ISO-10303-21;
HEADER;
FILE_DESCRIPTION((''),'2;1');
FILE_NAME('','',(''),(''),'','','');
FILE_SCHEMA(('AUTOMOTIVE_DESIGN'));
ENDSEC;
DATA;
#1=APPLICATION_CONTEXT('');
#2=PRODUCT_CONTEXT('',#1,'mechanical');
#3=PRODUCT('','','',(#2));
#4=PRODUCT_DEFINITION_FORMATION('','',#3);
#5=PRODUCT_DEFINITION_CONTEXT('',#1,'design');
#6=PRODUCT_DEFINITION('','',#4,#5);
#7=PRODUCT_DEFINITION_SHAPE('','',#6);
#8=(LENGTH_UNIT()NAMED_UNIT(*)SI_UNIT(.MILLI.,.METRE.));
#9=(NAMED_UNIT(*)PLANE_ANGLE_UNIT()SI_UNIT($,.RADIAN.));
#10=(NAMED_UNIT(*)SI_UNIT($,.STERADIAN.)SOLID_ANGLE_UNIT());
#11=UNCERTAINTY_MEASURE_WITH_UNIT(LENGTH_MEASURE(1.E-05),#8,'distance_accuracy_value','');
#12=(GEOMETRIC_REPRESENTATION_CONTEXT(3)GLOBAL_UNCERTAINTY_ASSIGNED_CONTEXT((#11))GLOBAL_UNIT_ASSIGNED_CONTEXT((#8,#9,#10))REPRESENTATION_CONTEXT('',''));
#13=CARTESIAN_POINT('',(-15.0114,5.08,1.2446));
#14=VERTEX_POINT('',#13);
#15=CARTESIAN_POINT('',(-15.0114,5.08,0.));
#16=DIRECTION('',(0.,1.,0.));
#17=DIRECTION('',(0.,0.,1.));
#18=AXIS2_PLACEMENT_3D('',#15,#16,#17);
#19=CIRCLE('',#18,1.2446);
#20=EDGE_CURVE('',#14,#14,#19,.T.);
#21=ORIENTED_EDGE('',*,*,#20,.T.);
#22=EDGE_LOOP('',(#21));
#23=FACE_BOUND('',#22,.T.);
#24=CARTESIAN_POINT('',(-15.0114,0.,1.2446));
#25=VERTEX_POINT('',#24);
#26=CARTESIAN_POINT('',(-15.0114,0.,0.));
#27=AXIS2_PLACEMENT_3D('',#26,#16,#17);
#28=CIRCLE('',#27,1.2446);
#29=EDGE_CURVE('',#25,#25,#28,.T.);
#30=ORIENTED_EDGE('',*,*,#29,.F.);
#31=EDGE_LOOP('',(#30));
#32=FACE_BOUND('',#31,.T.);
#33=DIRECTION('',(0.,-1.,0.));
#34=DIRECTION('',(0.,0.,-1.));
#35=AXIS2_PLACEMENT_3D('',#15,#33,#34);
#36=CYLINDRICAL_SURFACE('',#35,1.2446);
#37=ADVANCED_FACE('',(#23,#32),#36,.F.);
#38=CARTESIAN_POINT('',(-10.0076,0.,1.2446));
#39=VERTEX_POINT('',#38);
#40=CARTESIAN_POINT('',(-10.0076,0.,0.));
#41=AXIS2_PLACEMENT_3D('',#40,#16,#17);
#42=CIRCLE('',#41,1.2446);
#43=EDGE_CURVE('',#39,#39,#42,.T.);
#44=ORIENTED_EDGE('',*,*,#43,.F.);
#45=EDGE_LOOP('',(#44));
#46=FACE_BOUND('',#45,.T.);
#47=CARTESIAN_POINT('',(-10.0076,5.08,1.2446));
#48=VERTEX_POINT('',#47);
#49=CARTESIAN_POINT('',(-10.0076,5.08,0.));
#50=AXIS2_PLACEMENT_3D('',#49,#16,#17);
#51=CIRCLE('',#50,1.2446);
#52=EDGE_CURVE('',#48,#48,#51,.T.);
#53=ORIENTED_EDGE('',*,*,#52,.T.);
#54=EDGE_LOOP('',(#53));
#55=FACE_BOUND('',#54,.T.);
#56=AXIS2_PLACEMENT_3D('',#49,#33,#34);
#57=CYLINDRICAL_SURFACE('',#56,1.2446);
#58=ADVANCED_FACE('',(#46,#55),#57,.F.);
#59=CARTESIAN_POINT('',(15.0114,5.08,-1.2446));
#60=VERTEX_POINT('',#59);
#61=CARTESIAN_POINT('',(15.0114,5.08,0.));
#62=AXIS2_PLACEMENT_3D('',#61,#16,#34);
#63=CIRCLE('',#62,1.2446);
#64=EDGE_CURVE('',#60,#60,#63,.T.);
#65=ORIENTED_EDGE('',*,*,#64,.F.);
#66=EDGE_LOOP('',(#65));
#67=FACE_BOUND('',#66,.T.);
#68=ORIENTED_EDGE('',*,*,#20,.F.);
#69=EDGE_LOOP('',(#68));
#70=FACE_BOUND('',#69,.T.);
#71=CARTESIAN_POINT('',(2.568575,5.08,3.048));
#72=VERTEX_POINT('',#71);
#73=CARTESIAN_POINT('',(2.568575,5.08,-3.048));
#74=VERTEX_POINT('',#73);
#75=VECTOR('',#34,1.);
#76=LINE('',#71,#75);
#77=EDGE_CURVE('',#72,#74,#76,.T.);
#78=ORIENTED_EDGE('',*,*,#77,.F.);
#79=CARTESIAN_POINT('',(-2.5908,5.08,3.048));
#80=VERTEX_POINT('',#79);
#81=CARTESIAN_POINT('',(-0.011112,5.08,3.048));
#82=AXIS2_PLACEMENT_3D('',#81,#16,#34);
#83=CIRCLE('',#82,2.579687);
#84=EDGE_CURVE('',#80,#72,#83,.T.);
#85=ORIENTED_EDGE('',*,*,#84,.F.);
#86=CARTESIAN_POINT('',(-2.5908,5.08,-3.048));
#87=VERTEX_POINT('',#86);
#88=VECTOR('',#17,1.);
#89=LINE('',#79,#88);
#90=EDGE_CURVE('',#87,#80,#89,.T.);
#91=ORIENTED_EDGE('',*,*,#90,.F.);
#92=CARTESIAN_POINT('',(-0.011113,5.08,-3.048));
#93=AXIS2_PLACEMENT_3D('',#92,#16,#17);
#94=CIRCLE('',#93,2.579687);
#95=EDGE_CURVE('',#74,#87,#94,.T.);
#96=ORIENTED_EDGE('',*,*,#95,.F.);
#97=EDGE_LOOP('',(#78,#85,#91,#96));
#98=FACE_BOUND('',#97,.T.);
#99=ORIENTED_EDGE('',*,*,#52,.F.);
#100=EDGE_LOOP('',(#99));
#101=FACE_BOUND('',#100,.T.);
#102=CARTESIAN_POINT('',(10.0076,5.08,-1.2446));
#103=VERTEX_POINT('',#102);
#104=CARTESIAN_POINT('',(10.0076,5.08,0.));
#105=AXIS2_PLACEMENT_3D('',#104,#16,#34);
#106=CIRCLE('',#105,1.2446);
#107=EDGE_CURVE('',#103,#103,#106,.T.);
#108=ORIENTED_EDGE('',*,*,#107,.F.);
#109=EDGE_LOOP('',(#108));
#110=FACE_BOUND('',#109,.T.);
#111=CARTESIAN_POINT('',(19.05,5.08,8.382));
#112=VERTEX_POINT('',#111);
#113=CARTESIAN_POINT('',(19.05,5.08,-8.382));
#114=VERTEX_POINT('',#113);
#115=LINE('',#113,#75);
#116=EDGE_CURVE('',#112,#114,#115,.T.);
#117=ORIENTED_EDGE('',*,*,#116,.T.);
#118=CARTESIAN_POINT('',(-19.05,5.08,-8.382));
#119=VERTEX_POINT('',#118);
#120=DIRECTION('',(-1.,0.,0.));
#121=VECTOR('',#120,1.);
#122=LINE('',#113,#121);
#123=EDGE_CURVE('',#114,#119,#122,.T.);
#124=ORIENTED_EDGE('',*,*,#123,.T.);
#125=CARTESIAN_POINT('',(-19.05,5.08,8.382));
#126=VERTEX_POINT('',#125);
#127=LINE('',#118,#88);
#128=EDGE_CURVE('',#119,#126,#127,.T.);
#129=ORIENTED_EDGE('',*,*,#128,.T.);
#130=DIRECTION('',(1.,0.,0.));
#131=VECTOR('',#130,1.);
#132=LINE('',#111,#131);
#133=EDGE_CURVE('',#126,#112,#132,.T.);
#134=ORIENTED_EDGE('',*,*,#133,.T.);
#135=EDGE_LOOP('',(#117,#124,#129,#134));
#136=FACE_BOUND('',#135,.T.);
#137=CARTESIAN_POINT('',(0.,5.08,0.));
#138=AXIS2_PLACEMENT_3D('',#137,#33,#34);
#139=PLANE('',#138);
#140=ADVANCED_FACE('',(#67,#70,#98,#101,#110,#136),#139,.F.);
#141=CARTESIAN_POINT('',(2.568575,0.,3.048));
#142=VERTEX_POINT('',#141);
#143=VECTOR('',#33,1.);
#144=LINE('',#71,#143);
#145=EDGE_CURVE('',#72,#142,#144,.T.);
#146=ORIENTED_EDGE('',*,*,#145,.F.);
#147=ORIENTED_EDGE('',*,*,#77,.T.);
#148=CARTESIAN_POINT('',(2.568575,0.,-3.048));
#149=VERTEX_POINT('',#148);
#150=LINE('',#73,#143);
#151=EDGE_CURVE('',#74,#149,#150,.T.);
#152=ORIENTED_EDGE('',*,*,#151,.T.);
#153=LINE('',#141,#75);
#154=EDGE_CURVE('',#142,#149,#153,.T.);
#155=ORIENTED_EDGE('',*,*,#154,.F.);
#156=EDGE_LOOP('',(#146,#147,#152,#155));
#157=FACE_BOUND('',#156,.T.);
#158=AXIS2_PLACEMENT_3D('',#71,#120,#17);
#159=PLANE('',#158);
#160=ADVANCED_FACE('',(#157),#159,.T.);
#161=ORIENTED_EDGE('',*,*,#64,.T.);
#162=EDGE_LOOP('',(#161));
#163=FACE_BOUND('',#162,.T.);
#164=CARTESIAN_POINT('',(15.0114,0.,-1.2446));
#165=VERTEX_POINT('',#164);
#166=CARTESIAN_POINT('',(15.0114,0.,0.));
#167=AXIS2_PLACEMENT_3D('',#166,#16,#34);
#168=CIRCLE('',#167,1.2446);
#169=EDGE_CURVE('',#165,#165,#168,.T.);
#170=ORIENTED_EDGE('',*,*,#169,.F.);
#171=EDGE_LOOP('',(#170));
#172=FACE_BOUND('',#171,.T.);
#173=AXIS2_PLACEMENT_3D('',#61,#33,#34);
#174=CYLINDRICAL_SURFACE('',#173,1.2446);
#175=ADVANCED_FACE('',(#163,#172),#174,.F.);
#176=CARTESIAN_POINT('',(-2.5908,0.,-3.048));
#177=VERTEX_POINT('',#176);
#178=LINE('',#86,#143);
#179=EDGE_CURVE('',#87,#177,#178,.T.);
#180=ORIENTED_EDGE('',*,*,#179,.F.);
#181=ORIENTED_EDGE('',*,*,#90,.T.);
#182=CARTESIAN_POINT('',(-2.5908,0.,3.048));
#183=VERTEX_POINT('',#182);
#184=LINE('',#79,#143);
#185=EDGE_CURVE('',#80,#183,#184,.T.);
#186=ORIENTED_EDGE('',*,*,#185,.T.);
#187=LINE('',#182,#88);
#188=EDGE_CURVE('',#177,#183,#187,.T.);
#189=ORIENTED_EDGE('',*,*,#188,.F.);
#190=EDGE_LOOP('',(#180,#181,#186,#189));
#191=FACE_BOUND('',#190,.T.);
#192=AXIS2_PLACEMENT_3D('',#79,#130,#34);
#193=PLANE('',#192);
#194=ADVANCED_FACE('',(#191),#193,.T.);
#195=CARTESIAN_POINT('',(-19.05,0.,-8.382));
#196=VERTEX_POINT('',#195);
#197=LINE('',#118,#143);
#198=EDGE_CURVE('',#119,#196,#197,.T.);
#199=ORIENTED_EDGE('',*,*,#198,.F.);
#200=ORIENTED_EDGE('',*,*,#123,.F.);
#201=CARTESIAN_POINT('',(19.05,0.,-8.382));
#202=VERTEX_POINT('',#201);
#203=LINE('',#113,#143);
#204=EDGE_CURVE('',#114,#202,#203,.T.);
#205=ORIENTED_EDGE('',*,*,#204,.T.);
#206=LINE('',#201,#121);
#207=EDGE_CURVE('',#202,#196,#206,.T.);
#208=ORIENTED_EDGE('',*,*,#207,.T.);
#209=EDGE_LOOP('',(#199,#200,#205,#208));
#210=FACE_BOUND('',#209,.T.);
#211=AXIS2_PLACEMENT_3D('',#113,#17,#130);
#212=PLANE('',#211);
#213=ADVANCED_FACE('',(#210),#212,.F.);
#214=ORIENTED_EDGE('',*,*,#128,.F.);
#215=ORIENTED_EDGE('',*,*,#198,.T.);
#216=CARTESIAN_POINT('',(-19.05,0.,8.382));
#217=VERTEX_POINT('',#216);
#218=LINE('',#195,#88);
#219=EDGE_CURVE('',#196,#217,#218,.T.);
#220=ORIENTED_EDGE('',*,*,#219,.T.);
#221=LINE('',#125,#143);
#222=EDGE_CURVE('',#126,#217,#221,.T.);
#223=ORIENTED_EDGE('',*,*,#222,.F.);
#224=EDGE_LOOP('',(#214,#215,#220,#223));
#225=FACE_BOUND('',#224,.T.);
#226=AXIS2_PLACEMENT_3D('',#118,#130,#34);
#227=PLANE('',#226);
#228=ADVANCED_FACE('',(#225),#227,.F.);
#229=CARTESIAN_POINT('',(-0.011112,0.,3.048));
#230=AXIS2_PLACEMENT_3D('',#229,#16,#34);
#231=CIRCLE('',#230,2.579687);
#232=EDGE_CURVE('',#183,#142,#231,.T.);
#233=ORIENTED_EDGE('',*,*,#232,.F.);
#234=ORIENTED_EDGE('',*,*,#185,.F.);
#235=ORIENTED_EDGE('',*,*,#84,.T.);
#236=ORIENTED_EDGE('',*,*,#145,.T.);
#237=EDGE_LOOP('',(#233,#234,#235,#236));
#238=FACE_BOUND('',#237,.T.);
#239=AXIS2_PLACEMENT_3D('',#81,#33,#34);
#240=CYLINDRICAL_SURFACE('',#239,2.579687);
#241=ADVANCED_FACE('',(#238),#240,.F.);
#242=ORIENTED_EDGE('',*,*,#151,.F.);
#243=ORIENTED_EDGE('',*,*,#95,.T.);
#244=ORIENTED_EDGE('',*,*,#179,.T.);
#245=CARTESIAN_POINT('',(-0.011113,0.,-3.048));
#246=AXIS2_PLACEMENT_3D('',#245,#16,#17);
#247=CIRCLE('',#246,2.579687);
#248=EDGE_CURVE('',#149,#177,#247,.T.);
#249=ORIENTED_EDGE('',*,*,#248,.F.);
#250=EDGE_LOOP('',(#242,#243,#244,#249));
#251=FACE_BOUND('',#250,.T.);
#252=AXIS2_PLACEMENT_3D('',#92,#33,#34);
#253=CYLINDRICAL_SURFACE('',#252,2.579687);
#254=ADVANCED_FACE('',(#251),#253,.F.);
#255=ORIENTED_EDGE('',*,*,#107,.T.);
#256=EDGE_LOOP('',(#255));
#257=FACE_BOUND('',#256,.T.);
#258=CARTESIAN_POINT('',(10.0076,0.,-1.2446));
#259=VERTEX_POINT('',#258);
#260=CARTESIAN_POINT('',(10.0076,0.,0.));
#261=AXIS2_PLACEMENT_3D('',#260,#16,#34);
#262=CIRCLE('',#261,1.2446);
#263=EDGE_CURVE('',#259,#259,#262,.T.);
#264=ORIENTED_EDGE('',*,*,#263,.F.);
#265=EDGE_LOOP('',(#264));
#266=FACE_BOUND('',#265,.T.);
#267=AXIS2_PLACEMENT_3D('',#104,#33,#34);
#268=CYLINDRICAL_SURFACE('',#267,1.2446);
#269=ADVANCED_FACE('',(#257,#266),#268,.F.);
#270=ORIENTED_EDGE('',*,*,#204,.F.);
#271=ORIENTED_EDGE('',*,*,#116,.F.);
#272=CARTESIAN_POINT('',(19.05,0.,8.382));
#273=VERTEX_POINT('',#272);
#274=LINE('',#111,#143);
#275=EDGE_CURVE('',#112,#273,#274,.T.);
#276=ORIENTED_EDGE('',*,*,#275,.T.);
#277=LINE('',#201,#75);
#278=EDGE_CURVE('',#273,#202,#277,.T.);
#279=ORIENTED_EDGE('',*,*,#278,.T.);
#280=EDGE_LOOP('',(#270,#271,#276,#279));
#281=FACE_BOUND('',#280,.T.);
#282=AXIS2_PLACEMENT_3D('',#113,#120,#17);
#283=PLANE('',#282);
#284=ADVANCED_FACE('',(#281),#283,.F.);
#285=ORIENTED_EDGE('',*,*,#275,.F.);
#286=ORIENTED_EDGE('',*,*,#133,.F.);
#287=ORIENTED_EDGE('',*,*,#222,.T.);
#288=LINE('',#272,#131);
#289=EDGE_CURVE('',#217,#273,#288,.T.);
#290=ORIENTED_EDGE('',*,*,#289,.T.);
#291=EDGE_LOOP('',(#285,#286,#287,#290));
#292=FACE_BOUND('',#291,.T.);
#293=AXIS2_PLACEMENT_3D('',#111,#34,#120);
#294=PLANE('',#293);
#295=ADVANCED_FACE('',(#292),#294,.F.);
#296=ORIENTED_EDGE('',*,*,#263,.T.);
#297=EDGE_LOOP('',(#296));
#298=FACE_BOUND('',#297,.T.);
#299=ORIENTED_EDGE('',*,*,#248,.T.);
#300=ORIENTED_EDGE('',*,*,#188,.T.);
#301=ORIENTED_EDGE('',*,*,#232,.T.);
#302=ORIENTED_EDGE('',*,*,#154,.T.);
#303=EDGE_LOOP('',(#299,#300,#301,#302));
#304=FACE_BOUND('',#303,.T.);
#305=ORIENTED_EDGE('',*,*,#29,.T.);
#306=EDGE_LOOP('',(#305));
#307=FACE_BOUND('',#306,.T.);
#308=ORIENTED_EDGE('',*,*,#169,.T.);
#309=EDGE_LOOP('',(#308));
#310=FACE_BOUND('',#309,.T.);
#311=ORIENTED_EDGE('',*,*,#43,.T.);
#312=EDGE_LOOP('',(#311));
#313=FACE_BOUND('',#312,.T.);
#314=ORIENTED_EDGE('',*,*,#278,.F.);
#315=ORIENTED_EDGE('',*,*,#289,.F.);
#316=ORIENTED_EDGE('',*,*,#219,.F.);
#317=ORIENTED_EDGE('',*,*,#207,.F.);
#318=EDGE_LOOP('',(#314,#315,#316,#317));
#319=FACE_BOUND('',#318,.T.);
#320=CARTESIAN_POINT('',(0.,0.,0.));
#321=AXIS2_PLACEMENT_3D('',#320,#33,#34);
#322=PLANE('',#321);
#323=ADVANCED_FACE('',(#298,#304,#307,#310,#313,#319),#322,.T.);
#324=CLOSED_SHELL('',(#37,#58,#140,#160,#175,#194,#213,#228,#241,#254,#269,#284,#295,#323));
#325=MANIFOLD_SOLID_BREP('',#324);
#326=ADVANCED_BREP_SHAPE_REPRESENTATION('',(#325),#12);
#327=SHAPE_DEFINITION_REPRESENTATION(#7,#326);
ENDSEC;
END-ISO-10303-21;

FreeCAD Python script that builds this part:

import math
import FreeCAD as App
import Part
import Sketcher

V = App.Vector
Q = App.Units.Quantity


def add_polygon(sketch, points):
    """Adds a closed chain of lines whose ends are joined by coincident constraints."""
    first, n = sketch.GeometryCount, len(points)
    for a, b in zip(points, points[1:] + points[:1]):
        sketch.addGeometry(Part.LineSegment(App.Vector(*a, 0), App.Vector(*b, 0)), False)
    for i in range(n):
        sketch.addConstraint(Sketcher.Constraint("Coincident", first + i, 2, first + (i + 1) % n, 1))

doc = App.newDocument("Part")
params = doc.addObject("Spreadsheet::Sheet", "Params")
for row, (alias, value) in enumerate([
    ("sketch1_diameter", "0.098 in"),
    ("sketch1_width", "1.5 in"),
    ("sketch1_height", "0.66 in"),
    ("sketch1_height2", "0.24 in"),
    ("pad1_length", "0.2 in"),
], start=1):
    params.set(f"A{row}", alias)
    params.set(f"B{row}", "=" + value)
    params.setAlias(f"B{row}", alias)

body = doc.addObject("PartDesign::Body", "Body")

# Sketch on XZ plane
sketch1 = body.newObject("Sketcher::SketchObject", "Sketch")
sketch1.AttachmentSupport = (doc.getObject("XZ_Plane"), [""])
sketch1.MapMode = "FlatFace"
add_polygon(sketch1, [(-19.1, -8.4), (-19.1, 8.4), (19.1, 8.4), (19.1, -8.4)])  # lines 0-3
sketch1.addGeometry(Part.Circle(V(-15, 0, 0), V(0, 0, 1), 1.2), False)  # 4
sketch1.addGeometry(Part.Circle(V(-10, 0, 0), V(0, 0, 1), 1.2), False)  # 5
sketch1.addGeometry(Part.LineSegment(V(2.6, -3, 0), V(2.6, 3, 0)), False)  # 6
sketch1.addGeometry(Part.ArcOfCircle(Part.Circle(V(0, 3, 0), V(0, 0, 1), 2.6), math.radians(0), math.radians(180)), False)  # 7
sketch1.addGeometry(Part.LineSegment(V(-2.6, 3, 0), V(-2.6, -3, 0)), False)  # 8
sketch1.addGeometry(Part.ArcOfCircle(Part.Circle(V(0, -3, 0), V(0, 0, 1), 2.6), math.radians(180), math.radians(360)), False)  # 9
sketch1.addGeometry(Part.Circle(V(10, 0, 0), V(0, 0, 1), 1.2), False)  # 10
sketch1.addGeometry(Part.Circle(V(15, 0, 0), V(0, 0, 1), 1.2), False)  # 11
sketch1.addConstraint([
    Sketcher.Constraint("Tangent", 6, 2, 7, 1),
    Sketcher.Constraint("Tangent", 7, 2, 8, 1),
    Sketcher.Constraint("Tangent", 8, 2, 9, 1),
    Sketcher.Constraint("Tangent", 9, 2, 6, 1),
    Sketcher.Constraint("Vertical", 0),
    Sketcher.Constraint("Horizontal", 1),
    Sketcher.Constraint("Vertical", 2),
    Sketcher.Constraint("Horizontal", 3),
    Sketcher.Constraint("Vertical", 6),
    Sketcher.Constraint("Vertical", 8),
    Sketcher.Constraint("Equal", 4, 5),
    Sketcher.Constraint("Equal", 5, 10),
    Sketcher.Constraint("Equal", 10, 11),
    Sketcher.Constraint("Symmetric", 5, 3, 10, 3, -1, 1),
    Sketcher.Constraint("Symmetric", 4, 3, 11, 3, -1, 1),
    Sketcher.Constraint("Symmetric", 0, 2, 2, 2, -1, 1),
    Sketcher.Constraint("PointOnObject", 4, 3, -1),
    Sketcher.Constraint("PointOnObject", 5, 3, -1),
    Sketcher.Constraint("Diameter", 4, Q("0.098 in")),
    Sketcher.Constraint("DistanceX", 1, 1, 1, 2, Q("1.5 in")),
    Sketcher.Constraint("DistanceY", 0, 1, 0, 2, Q("0.66 in")),
    Sketcher.Constraint("DistanceY", 6, 1, 6, 2, Q("0.24 in")),
    Sketcher.Constraint("DistanceY", -1, 1, 7, 3, Q("0.12 in")),
    Sketcher.Constraint("DistanceX", 4, 3, -1, 1, Q("0.591 in")),
    Sketcher.Constraint("DistanceX", 5, 3, -1, 1, Q("0.394 in")),
    Sketcher.Constraint("DistanceX", 7, 2, -1, 1, Q("0.102 in")),
    Sketcher.Constraint("DistanceX", 7, 2, 6, 2, Q("0.203125 in")),
])
sketch1.setExpression("Constraints[22]", "Params.sketch1_diameter")
sketch1.setExpression("Constraints[23]", "Params.sketch1_width")
sketch1.setExpression("Constraints[24]", "Params.sketch1_height")
sketch1.setExpression("Constraints[25]", "Params.sketch1_height2")
pad1 = body.newObject("PartDesign::Pad", "Pad")
pad1.Profile = sketch1
pad1.setExpression("Length", "Params.pad1_length")
pad1.Reversed = True

doc.recompute()
